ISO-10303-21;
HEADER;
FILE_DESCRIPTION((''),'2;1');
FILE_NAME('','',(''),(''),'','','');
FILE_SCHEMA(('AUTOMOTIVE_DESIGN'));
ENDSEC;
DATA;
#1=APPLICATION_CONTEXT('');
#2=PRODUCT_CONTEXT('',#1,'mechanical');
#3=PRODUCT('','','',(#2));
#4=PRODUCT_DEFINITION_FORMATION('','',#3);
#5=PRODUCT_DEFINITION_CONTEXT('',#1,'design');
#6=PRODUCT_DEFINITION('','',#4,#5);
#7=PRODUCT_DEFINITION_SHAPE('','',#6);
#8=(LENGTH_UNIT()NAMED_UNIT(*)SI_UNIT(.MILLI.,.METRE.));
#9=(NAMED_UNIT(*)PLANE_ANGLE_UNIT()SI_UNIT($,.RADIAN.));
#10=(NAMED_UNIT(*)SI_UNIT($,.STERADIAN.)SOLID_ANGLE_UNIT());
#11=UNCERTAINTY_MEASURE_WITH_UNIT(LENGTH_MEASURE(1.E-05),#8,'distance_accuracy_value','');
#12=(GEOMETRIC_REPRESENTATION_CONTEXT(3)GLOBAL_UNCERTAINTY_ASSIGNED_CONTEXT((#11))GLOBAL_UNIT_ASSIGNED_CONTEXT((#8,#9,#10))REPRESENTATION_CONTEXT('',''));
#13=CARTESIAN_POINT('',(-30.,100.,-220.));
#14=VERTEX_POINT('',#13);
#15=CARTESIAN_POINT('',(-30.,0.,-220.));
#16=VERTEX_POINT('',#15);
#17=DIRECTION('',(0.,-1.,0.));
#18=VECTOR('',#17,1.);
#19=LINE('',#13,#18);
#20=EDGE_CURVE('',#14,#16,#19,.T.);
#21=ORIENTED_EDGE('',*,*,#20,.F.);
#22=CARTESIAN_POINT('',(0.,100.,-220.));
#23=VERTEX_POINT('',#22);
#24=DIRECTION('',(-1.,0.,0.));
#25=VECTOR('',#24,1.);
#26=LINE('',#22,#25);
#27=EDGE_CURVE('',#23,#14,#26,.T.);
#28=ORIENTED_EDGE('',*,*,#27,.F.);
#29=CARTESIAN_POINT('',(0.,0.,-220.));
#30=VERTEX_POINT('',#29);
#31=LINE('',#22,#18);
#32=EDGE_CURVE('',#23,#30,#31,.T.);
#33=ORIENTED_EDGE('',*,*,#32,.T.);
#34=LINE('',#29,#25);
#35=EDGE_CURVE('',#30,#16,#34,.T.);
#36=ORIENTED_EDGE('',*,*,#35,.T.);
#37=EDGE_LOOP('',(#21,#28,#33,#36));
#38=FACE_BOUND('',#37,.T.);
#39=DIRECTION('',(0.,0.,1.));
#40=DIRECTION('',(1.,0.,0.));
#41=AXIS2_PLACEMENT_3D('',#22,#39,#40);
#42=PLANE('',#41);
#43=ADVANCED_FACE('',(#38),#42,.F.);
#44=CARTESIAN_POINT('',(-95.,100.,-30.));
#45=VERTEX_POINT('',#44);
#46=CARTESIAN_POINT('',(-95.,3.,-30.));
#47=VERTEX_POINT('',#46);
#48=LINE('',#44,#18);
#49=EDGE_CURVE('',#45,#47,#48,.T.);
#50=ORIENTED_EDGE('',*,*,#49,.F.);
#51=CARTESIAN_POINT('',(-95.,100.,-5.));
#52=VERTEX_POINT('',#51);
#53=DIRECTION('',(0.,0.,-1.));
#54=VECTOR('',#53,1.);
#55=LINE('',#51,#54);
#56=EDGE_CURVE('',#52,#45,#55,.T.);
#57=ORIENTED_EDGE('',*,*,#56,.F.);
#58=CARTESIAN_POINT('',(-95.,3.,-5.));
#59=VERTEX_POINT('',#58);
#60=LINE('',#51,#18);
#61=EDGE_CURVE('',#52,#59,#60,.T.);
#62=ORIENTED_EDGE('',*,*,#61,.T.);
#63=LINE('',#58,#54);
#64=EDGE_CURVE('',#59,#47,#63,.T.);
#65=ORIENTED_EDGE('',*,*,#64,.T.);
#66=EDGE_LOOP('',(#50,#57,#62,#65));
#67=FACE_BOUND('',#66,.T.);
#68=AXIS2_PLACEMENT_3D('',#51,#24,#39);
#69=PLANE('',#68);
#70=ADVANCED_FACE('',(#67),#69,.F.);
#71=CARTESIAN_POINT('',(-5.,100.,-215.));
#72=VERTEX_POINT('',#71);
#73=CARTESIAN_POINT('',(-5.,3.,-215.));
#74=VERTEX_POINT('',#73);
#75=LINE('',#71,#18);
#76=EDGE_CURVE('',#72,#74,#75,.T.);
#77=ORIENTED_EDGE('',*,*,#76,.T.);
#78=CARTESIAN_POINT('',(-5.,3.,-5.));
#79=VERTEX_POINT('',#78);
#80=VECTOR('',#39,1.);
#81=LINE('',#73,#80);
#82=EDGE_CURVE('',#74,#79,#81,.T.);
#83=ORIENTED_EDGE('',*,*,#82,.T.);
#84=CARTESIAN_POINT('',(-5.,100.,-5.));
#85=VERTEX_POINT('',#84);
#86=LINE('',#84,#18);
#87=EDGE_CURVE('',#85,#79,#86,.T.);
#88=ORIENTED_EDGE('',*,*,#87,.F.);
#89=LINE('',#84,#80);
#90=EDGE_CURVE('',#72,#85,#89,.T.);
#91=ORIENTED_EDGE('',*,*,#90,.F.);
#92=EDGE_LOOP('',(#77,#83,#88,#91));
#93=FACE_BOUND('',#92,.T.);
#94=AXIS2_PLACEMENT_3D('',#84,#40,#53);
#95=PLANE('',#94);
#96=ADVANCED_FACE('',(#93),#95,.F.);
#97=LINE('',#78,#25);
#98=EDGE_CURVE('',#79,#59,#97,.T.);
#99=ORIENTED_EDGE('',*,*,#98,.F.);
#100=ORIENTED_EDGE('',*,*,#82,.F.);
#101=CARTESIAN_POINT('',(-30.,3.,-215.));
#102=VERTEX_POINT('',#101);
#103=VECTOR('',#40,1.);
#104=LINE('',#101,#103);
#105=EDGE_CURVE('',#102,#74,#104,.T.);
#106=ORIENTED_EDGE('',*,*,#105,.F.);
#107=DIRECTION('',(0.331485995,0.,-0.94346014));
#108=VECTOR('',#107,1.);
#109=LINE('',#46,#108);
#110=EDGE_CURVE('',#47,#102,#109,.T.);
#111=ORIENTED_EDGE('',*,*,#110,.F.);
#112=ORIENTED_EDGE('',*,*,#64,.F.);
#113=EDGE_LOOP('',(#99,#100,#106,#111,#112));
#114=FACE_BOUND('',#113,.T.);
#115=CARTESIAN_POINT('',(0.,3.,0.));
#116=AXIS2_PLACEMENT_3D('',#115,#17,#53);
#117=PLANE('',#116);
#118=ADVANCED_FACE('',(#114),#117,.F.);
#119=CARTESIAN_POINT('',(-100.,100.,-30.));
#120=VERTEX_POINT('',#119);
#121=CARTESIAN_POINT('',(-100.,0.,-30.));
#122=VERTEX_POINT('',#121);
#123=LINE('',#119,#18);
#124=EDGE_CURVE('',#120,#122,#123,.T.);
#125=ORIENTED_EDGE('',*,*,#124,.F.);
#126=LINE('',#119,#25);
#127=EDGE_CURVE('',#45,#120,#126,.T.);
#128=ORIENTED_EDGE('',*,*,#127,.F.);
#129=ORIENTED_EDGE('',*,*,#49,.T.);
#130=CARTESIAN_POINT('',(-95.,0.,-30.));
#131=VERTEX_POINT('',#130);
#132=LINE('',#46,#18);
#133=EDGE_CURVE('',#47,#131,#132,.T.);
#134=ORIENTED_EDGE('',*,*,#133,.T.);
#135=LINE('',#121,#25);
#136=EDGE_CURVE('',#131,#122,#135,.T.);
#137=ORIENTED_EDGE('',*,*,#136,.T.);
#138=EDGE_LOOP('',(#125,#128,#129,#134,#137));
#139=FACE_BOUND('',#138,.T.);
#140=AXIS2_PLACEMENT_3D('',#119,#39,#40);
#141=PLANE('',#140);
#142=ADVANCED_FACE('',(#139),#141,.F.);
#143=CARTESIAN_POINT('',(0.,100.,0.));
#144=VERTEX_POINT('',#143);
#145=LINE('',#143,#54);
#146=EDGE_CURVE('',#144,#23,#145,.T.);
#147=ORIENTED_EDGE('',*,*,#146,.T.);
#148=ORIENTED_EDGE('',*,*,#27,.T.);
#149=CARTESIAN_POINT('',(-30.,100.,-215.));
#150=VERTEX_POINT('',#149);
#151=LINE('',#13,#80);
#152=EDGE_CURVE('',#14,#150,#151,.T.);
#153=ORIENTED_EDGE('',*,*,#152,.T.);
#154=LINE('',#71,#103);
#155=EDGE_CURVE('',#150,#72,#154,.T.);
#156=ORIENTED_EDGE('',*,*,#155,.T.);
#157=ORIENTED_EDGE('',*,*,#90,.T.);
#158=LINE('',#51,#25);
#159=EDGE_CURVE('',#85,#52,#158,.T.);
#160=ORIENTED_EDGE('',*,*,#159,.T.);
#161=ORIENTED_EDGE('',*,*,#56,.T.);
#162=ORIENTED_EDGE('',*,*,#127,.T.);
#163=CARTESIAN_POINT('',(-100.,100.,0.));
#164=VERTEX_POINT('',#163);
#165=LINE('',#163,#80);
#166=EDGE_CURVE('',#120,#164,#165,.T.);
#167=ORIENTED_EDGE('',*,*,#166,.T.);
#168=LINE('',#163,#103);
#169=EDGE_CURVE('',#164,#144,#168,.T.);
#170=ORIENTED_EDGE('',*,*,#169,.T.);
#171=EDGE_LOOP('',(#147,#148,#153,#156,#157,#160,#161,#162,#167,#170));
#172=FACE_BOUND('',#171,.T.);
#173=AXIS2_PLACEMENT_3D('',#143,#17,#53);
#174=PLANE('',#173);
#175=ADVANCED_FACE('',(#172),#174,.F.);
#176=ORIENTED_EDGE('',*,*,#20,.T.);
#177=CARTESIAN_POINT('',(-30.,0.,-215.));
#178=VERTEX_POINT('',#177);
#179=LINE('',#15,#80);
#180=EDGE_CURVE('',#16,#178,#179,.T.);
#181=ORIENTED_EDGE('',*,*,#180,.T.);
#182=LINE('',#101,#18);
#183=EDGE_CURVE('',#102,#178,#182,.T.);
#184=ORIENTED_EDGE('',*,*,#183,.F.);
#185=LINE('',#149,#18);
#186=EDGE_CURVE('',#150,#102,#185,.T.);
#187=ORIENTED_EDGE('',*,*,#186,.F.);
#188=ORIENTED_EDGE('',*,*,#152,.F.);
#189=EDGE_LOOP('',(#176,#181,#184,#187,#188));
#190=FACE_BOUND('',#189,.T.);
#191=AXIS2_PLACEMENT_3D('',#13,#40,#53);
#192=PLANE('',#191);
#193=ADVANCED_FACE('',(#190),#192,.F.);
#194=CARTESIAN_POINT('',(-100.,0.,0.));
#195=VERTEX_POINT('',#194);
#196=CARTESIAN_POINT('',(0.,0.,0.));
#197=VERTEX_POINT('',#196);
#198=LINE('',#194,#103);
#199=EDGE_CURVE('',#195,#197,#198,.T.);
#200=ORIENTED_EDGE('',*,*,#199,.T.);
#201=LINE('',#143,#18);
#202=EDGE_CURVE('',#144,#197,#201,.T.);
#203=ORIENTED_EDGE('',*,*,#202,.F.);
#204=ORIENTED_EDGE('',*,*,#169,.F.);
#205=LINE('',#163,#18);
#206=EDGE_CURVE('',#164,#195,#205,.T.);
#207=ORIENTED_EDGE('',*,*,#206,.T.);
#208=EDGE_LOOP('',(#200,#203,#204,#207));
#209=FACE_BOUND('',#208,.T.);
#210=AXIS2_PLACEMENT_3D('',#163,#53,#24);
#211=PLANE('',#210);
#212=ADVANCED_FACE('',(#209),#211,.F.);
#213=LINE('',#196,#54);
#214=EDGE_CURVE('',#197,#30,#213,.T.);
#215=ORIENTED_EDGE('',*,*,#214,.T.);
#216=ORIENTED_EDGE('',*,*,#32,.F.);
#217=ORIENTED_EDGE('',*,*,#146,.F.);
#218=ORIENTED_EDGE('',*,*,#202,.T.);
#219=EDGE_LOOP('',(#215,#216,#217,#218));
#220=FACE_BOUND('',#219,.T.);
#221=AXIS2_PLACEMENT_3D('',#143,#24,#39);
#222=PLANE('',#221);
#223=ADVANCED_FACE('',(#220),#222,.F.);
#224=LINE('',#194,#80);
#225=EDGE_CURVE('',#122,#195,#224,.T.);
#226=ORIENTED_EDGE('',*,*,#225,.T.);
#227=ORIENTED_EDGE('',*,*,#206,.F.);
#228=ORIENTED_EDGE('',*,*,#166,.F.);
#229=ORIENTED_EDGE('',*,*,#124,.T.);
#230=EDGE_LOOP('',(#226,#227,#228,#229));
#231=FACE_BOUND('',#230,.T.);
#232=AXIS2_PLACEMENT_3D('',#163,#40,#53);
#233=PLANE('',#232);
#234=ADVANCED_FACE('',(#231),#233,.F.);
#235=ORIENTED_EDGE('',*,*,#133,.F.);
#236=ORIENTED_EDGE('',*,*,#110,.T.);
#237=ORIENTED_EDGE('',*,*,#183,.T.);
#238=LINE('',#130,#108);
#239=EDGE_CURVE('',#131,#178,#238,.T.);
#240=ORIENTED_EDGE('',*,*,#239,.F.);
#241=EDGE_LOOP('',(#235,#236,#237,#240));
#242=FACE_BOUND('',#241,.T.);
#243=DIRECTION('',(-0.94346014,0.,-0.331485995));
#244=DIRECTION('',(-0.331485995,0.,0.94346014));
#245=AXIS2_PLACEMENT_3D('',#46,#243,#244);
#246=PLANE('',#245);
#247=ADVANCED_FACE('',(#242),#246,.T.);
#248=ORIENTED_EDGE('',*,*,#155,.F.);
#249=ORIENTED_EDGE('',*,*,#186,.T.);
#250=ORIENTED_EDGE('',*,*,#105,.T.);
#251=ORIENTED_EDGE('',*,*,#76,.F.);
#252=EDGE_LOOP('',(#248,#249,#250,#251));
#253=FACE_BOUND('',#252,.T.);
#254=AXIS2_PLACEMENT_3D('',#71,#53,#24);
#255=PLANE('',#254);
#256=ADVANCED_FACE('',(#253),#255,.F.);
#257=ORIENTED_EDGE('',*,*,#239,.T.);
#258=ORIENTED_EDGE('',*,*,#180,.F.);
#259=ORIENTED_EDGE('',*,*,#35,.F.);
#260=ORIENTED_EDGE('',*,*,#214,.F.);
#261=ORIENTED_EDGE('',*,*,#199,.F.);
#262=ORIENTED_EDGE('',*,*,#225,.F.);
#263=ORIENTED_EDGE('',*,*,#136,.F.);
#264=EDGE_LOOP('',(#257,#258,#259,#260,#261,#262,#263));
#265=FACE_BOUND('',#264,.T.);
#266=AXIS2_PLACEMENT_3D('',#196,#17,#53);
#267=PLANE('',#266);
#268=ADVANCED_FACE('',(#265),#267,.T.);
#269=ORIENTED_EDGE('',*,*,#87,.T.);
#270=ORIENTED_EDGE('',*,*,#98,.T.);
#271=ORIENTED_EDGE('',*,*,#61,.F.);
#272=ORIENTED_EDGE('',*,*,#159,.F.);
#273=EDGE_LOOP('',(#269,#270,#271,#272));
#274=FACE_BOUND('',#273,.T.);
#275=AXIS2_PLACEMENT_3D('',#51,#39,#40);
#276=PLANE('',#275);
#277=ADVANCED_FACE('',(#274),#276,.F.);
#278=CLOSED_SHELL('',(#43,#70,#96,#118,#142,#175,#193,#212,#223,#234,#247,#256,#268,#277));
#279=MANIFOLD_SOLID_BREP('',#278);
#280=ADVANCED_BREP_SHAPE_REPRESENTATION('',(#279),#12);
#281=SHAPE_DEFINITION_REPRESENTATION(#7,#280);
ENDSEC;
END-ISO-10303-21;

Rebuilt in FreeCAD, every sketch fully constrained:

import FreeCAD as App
import Part
import Sketcher

V = App.Vector
Q = App.Units.Quantity


def add_polygon(sketch, points):
    """Adds a closed chain of lines whose ends are joined by coincident constraints."""
    first, n = sketch.GeometryCount, len(points)
    for a, b in zip(points, points[1:] + points[:1]):
        sketch.addGeometry(Part.LineSegment(App.Vector(*a, 0), App.Vector(*b, 0)), False)
    for i in range(n):
        sketch.addConstraint(Sketcher.Constraint("Coincident", first + i, 2, first + (i + 1) % n, 1))

doc = App.newDocument("Part")
params = doc.addObject("Spreadsheet::Sheet", "Params")
for row, (alias, value) in enumerate([
    ("sketch1_width", "100 mm"),
    ("sketch1_width2", "30 mm"),
    ("sketch1_width3", "25 mm"),
    ("sketch1_width4", "90 mm"),
    ("sketch1_height", "220 mm"),
    ("pad1_length", "100 mm"),
    ("sketch2_width", "25 mm"),
    ("sketch2_width2", "90 mm"),
    ("sketch2_height", "210 mm"),
    ("pad2_length", "3 mm"),
], start=1):
    params.set(f"A{row}", alias)
    params.set(f"B{row}", "=" + value)
    params.setAlias(f"B{row}", alias)

body = doc.addObject("PartDesign::Body", "Body")

# Sketch on XZ plane
sketch1 = doc.addObject("Sketcher::SketchObject", "Sketch")
body.addObject(sketch1)
sketch1.AttachmentSupport = (doc.XZ_Plane, [""])
sketch1.MapMode = "FlatFace"
add_polygon(sketch1, [(-100, 0), (0, 0), (0, -220), (-30, -220), (-30, -215), (-5, -215), (-5, -5), (-95, -5), (-95, -30), (-100, -30)])  # lines 0-9
sketch1.addConstraint(Sketcher.Constraint("Horizontal", 0))
sketch1.addConstraint(Sketcher.Constraint("Vertical", 1))
sketch1.addConstraint(Sketcher.Constraint("Horizontal", 2))
sketch1.addConstraint(Sketcher.Constraint("Vertical", 3))
sketch1.addConstraint(Sketcher.Constraint("Horizontal", 4))
sketch1.addConstraint(Sketcher.Constraint("Vertical", 5))
sketch1.addConstraint(Sketcher.Constraint("Horizontal", 6))
sketch1.addConstraint(Sketcher.Constraint("Vertical", 7))
sketch1.addConstraint(Sketcher.Constraint("Horizontal", 8))
sketch1.addConstraint(Sketcher.Constraint("Vertical", 9))
sketch1.addConstraint(Sketcher.Constraint("Coincident", 0, 2, -1, 1))
sketch1.addConstraint(Sketcher.Constraint("Equal", 8, 3))
sketch1.addConstraint(Sketcher.Constraint("Equal", 4, 7))
sketch1.addConstraint(Sketcher.Constraint("Equal", 2, 9))
sketch1.addConstraint(Sketcher.Constraint("DistanceX", 0, 1, 0, 2, Q("100 mm")))
sketch1.addConstraint(Sketcher.Constraint("DistanceX", 2, 2, 2, 1, Q("30 mm")))
sketch1.addConstraint(Sketcher.Constraint("DistanceX", 4, 1, 4, 2, Q("25 mm")))
sketch1.addConstraint(Sketcher.Constraint("DistanceX", 6, 2, 6, 1, Q("90 mm")))
sketch1.addConstraint(Sketcher.Constraint("DistanceY", 1, 2, 1, 1, Q("220 mm")))
sketch1.setExpression("Constraints[24]", "Params.sketch1_width")
sketch1.setExpression("Constraints[25]", "Params.sketch1_width2")
sketch1.setExpression("Constraints[26]", "Params.sketch1_width3")
sketch1.setExpression("Constraints[27]", "Params.sketch1_width4")
sketch1.setExpression("Constraints[28]", "Params.sketch1_height")
pad1 = doc.addObject("PartDesign::Pad", "Pad")
body.addObject(pad1)
pad1.Profile = sketch1
pad1.setExpression("Length", "Params.pad1_length")
pad1.Reversed = True

# Sketch on XZ plane
sketch2 = doc.addObject("Sketcher::SketchObject", "Sketch001")
body.addObject(sketch2)
sketch2.AttachmentSupport = (doc.XZ_Plane, [""])
sketch2.MapMode = "FlatFace"
add_polygon(sketch2, [(-30, -215), (-5, -215), (-5, -5), (-95, -5), (-95, -30)])  # lines 0-4
sketch2.addConstraint(Sketcher.Constraint("Horizontal", 0))
sketch2.addConstraint(Sketcher.Constraint("Vertical", 1))
sketch2.addConstraint(Sketcher.Constraint("Horizontal", 2))
sketch2.addConstraint(Sketcher.Constraint("Vertical", 3))
sketch2.addConstraint(Sketcher.Constraint("Equal", 0, 3))
sketch2.addConstraint(Sketcher.Constraint("DistanceX", 0, 1, 0, 2, Q("25 mm")))
sketch2.addConstraint(Sketcher.Constraint("DistanceX", 2, 2, 2, 1, Q("90 mm")))
sketch2.addConstraint(Sketcher.Constraint("DistanceY", 1, 1, 1, 2, Q("210 mm")))
sketch2.addConstraint(Sketcher.Constraint("DistanceX", 0, 2, -1, 1, Q("5 mm")))
sketch2.addConstraint(Sketcher.Constraint("DistanceY", 0, 2, -1, 1, Q("215 mm")))
sketch2.setExpression("Constraints[10]", "Params.sketch2_width")
sketch2.setExpression("Constraints[11]", "Params.sketch2_width2")
sketch2.setExpression("Constraints[12]", "Params.sketch2_height")
pad2 = doc.addObject("PartDesign::Pad", "Pad001")
body.addObject(pad2)
pad2.Profile = sketch2
pad2.setExpression("Length", "Params.pad2_length")
pad2.Reversed = True

doc.recompute()
